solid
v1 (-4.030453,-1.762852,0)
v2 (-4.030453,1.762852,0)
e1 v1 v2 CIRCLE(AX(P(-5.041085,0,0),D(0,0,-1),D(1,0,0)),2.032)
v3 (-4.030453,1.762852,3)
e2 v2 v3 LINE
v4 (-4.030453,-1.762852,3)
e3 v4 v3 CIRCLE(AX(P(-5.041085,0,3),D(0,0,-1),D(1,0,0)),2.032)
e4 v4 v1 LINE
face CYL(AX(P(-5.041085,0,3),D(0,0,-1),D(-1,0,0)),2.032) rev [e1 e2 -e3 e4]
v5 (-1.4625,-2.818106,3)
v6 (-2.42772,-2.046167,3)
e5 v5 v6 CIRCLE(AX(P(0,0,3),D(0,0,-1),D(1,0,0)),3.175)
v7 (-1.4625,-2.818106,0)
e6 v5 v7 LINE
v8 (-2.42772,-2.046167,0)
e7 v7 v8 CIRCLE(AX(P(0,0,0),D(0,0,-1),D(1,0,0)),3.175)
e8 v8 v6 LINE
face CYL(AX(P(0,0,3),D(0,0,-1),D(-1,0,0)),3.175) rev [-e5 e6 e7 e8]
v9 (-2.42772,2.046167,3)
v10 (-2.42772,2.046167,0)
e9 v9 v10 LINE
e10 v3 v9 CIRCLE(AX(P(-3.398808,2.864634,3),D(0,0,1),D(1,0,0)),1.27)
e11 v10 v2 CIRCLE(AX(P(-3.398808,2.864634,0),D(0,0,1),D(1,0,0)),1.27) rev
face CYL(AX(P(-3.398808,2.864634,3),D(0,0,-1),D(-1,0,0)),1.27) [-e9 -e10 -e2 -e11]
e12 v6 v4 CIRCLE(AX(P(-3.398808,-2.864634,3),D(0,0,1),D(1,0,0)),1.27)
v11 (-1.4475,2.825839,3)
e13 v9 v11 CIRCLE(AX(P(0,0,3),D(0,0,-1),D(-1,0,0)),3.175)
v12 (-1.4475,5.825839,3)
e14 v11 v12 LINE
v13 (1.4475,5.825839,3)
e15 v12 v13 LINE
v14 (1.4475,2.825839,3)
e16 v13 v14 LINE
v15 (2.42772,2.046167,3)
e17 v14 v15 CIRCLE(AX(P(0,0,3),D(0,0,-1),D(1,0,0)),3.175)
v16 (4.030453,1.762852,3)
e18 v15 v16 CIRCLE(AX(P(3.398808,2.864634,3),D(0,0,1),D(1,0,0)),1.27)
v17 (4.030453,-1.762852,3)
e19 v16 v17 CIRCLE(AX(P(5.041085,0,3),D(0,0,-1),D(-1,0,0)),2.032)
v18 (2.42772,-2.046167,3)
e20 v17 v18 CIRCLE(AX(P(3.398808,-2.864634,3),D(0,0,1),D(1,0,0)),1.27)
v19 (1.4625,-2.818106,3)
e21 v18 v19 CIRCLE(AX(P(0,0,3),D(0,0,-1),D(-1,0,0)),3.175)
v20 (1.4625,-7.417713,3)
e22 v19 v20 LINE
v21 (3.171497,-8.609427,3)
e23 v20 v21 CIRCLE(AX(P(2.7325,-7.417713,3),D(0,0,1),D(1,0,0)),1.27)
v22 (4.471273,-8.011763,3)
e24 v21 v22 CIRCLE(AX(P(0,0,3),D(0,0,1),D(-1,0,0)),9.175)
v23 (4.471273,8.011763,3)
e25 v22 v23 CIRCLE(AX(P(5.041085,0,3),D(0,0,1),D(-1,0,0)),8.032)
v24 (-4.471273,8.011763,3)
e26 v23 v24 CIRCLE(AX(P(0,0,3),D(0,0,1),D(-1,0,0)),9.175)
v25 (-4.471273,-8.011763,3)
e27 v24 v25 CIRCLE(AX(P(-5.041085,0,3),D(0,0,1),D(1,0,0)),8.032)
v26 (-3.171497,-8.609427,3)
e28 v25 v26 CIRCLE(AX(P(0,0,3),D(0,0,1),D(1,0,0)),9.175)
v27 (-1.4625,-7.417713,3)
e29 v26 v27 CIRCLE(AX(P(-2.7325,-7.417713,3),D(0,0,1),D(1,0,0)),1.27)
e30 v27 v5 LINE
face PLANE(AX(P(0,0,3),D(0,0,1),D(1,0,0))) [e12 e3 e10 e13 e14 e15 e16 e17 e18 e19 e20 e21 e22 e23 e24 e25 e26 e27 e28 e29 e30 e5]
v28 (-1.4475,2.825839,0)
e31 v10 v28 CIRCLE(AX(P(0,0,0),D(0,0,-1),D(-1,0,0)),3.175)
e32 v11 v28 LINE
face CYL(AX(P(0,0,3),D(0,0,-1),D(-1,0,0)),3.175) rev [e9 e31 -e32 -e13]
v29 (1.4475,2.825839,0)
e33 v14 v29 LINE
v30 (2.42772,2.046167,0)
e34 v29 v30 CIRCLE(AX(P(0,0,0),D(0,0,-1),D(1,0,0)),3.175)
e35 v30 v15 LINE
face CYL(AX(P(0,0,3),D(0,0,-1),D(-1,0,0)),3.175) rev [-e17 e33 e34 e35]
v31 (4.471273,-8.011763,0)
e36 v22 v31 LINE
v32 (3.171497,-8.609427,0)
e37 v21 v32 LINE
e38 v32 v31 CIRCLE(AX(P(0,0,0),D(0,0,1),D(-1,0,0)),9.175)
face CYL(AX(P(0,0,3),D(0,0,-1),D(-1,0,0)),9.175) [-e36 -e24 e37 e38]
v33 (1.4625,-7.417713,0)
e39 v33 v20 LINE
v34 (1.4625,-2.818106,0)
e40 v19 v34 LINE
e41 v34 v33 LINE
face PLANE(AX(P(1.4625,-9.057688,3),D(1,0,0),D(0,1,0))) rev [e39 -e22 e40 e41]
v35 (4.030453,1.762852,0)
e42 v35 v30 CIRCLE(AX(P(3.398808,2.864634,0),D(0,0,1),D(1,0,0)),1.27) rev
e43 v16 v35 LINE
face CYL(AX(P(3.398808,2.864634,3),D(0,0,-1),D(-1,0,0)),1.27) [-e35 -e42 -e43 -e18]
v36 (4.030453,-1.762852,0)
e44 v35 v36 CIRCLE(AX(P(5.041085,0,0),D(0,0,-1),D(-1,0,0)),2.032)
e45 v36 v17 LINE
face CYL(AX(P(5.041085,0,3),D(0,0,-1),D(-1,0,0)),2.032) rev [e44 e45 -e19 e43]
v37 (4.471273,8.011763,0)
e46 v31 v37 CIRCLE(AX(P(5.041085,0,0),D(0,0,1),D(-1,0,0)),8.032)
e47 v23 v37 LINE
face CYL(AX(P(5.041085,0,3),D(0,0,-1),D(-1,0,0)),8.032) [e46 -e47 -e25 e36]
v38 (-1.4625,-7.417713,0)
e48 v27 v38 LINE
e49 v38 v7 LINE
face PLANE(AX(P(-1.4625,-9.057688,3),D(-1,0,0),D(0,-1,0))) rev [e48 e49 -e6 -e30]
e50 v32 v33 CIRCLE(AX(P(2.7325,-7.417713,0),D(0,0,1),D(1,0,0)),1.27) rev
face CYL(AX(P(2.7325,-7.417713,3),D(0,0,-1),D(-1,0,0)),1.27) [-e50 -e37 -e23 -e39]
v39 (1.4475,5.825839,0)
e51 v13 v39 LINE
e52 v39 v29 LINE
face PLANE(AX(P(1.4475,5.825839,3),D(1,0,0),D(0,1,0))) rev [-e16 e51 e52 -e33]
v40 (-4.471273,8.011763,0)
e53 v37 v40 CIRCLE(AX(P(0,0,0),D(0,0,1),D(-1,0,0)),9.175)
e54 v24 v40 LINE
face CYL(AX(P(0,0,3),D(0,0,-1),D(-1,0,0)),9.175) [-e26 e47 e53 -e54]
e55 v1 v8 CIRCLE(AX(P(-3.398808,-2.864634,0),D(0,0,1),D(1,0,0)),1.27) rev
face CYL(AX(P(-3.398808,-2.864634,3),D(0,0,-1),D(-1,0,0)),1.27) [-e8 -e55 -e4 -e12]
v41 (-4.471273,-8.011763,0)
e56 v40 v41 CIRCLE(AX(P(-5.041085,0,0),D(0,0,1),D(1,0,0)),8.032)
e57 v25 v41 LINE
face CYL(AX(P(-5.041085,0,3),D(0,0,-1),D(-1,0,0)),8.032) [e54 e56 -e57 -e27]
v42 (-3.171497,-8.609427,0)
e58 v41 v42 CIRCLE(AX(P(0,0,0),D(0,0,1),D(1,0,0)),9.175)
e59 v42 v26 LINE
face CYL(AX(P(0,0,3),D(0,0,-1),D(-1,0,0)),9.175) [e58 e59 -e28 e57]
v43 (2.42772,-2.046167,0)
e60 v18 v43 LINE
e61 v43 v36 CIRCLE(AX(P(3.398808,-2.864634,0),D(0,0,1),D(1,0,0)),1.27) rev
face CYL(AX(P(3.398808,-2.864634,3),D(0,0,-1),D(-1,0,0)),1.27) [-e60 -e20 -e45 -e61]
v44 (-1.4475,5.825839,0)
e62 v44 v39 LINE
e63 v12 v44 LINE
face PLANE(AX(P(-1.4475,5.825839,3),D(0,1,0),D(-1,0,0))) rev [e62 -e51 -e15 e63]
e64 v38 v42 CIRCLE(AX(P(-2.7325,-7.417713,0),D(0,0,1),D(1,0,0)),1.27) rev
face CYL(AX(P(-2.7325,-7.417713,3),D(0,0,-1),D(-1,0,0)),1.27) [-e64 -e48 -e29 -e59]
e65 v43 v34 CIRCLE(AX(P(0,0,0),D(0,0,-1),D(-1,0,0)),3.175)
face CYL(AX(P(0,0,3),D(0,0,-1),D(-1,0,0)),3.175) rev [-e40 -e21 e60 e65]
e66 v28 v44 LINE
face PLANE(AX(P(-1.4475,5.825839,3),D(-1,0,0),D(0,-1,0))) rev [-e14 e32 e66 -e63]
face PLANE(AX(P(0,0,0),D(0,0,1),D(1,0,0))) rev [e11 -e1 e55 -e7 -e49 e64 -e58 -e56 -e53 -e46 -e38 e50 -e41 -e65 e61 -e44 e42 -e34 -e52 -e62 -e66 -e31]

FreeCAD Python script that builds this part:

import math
import FreeCAD as App
import Part
import Sketcher
from FreeCAD import Vector
Q = App.Units.Quantity


def edges_at(feature, points):
    """Names of the edges that pass closest to the given points."""
    edges = feature.Shape.Edges
    near = lambda p: min(range(len(edges)), key=lambda i: edges[i].distToShape(Part.Vertex(*p))[0])
    return sorted({f"Edge{near(p) + 1}" for p in points})

doc = App.newDocument("Part")
body = doc.addObject("PartDesign::Body", "Body")

sketch1 = doc.addObject("Sketcher::SketchObject", "Sketch")
body.addObject(sketch1)
sketch1.AttachmentSupport = (doc.XY_Plane, [""])
sketch1.MapMode = "FlatFace"
sketch1.addGeometry(Part.LineSegment(Vector(-1.4, 5.8, 0), Vector(1.4, 5.8, 0)), False)
sketch1.addGeometry(Part.LineSegment(Vector(1.4, 5.8, 0), Vector(1.4, 2.8, 0)), False)
sketch1.addGeometry(Part.ArcOfCircle(Part.Circle(Vector(0, 0, 0), Vector(0, 0, 1), 3.2), math.radians(12), math.radians(63)), False)
sketch1.addGeometry(Part.ArcOfCircle(Part.Circle(Vector(5, 0, 0), Vector(0, 0, 1), 2), math.radians(-162), math.radians(162)), False)
sketch1.addGeometry(Part.ArcOfCircle(Part.Circle(Vector(0, 0, 0), Vector(0, 0, 1), 3.2), math.radians(-63), math.radians(-12)), False)
sketch1.addGeometry(Part.LineSegment(Vector(1.5, -2.8, 0), Vector(1.5, -9.1, 0)), False)
sketch1.addGeometry(Part.ArcOfCircle(Part.Circle(Vector(0, 0, 0), Vector(0, 0, 1), 9.2), math.radians(-80.83), math.radians(-60.83)), False)
sketch1.addGeometry(Part.ArcOfCircle(Part.Circle(Vector(5, 0, 0), Vector(0, 0, 1), 8), math.radians(-94), math.radians(94)), False)
sketch1.addGeometry(Part.ArcOfCircle(Part.Circle(Vector(0, 0, 0), Vector(0, 0, 1), 9.2), math.radians(61), math.radians(119)), False)
sketch1.addGeometry(Part.ArcOfCircle(Part.Circle(Vector(-5, 0, 0), Vector(0, 0, 1), 8), math.radians(86), math.radians(274)), False)
sketch1.addGeometry(Part.ArcOfCircle(Part.Circle(Vector(0, 0, 0), Vector(0, 0, 1), 9.2), math.radians(-119.17), math.radians(-99.17)), False)
sketch1.addGeometry(Part.LineSegment(Vector(-1.5, -9.1, 0), Vector(-1.5, -2.8, 0)), False)
sketch1.addGeometry(Part.ArcOfCircle(Part.Circle(Vector(0, 0, 0), Vector(0, 0, 1), 3.2), math.radians(-168), math.radians(-117)), False)
sketch1.addGeometry(Part.ArcOfCircle(Part.Circle(Vector(-5, 0, 0), Vector(0, 0, 1), 2), math.radians(18), math.radians(342)), False)
sketch1.addGeometry(Part.ArcOfCircle(Part.Circle(Vector(0, 0, 0), Vector(0, 0, 1), 3.2), math.radians(117), math.radians(168)), False)
sketch1.addGeometry(Part.LineSegment(Vector(-1.4, 2.8, 0), Vector(-1.4, 5.8, 0)), False)
sketch1.addConstraint(Sketcher.Constraint("Coincident", 0, 2, 1, 1))
sketch1.addConstraint(Sketcher.Constraint("Coincident", 1, 2, 2, 2))
sketch1.addConstraint(Sketcher.Constraint("Coincident", 2, 1, 3, 2))
sketch1.addConstraint(Sketcher.Constraint("Coincident", 3, 1, 4, 2))
sketch1.addConstraint(Sketcher.Constraint("Coincident", 4, 1, 5, 1))
sketch1.addConstraint(Sketcher.Constraint("Coincident", 5, 2, 6, 1))
sketch1.addConstraint(Sketcher.Constraint("Coincident", 6, 2, 7, 1))
sketch1.addConstraint(Sketcher.Constraint("Coincident", 7, 2, 8, 1))
sketch1.addConstraint(Sketcher.Constraint("Coincident", 8, 2, 9, 1))
sketch1.addConstraint(Sketcher.Constraint("Coincident", 9, 2, 10, 1))
sketch1.addConstraint(Sketcher.Constraint("Coincident", 10, 2, 11, 1))
sketch1.addConstraint(Sketcher.Constraint("Coincident", 11, 2, 12, 2))
sketch1.addConstraint(Sketcher.Constraint("Coincident", 12, 1, 13, 2))
sketch1.addConstraint(Sketcher.Constraint("Coincident", 13, 1, 14, 2))
sketch1.addConstraint(Sketcher.Constraint("Coincident", 14, 1, 15, 1))
sketch1.addConstraint(Sketcher.Constraint("Coincident", 15, 2, 0, 1))
sketch1.addConstraint(Sketcher.Constraint("Horizontal", 0))
sketch1.addConstraint(Sketcher.Constraint("Vertical", 1))
sketch1.addConstraint(Sketcher.Constraint("Vertical", 5))
sketch1.addConstraint(Sketcher.Constraint("Vertical", 11))
sketch1.addConstraint(Sketcher.Constraint("Vertical", 15))
sketch1.addConstraint(Sketcher.Constraint("Coincident", 2, 3, -1, 1))
sketch1.addConstraint(Sketcher.Constraint("Coincident", 4, 3, -1, 1))
sketch1.addConstraint(Sketcher.Constraint("Coincident", 6, 3, -1, 1))
sketch1.addConstraint(Sketcher.Constraint("Coincident", 8, 3, -1, 1))
sketch1.addConstraint(Sketcher.Constraint("Coincident", 10, 3, -1, 1))
sketch1.addConstraint(Sketcher.Constraint("Coincident", 12, 3, -1, 1))
sketch1.addConstraint(Sketcher.Constraint("Coincident", 14, 3, -1, 1))
sketch1.addConstraint(Sketcher.Constraint("Coincident", 7, 3, 3, 3))
sketch1.addConstraint(Sketcher.Constraint("Coincident", 13, 3, 9, 3))
sketch1.addConstraint(Sketcher.Constraint("Equal", 2, 4))
sketch1.addConstraint(Sketcher.Constraint("Equal", 6, 8))
sketch1.addConstraint(Sketcher.Constraint("Equal", 7, 9))
sketch1.addConstraint(Sketcher.Constraint("Equal", 8, 10))
sketch1.addConstraint(Sketcher.Constraint("Equal", 4, 12))
sketch1.addConstraint(Sketcher.Constraint("Equal", 3, 13))
sketch1.addConstraint(Sketcher.Constraint("Equal", 12, 14))
sketch1.addConstraint(Sketcher.Constraint("Symmetric", 3, 3, 9, 3, -1, 1))
sketch1.addConstraint(Sketcher.Constraint("PointOnObject", 3, 3, -1))
sketch1.addConstraint(Sketcher.Constraint("Horizontal", 5, 2, 10, 2))
sketch1.addConstraint(Sketcher.Constraint("Horizontal", 1, 2, 14, 1))
sketch1.addConstraint(Sketcher.Constraint("Radius", 3, Q("0.08 in")))
sketch1.addConstraint(Sketcher.Constraint("Radius", 2, Q("0.125 in")))
sketch1.addConstraint(Sketcher.Constraint("Radius", 6, Q("9.175 mm")))
sketch1.addConstraint(Sketcher.Constraint("Radius", 7, Q("8.032 mm")))
sketch1.addConstraint(Sketcher.Constraint("DistanceY", 3, 1, 2, 1, Q("0.05 in")))
sketch1.addConstraint(Sketcher.Constraint("DistanceX", 0, 1, 0, 2, Q("2.895 mm")))
sketch1.addConstraint(Sketcher.Constraint("DistanceY", 1, 2, 1, 1, Q("3 mm")))
sketch1.addConstraint(Sketcher.Constraint("DistanceX", -1, 1, 4, 1, Q("1.4625 mm")))
pad1 = doc.addObject("PartDesign::Pad", "Pad")
body.addObject(pad1)
pad1.Profile = sketch1
pad1.Length = 3
doc.recompute()

fillet = doc.addObject("PartDesign::Fillet", "Fillet")
body.addObject(fillet)
fillet.Base = (pad1, edges_at(pad1, [
    (-3.111, 0.635, 1.5),
    (-3.111, -0.635, 1.5),
    (-1.462, -9.058, 1.5),
    (1.462, -9.058, 1.5),
    (3.111, -0.635, 1.5),
    (3.111, 0.635, 1.5),
]))
fillet.Radius = Q("0.05 in")

doc.recompute()
